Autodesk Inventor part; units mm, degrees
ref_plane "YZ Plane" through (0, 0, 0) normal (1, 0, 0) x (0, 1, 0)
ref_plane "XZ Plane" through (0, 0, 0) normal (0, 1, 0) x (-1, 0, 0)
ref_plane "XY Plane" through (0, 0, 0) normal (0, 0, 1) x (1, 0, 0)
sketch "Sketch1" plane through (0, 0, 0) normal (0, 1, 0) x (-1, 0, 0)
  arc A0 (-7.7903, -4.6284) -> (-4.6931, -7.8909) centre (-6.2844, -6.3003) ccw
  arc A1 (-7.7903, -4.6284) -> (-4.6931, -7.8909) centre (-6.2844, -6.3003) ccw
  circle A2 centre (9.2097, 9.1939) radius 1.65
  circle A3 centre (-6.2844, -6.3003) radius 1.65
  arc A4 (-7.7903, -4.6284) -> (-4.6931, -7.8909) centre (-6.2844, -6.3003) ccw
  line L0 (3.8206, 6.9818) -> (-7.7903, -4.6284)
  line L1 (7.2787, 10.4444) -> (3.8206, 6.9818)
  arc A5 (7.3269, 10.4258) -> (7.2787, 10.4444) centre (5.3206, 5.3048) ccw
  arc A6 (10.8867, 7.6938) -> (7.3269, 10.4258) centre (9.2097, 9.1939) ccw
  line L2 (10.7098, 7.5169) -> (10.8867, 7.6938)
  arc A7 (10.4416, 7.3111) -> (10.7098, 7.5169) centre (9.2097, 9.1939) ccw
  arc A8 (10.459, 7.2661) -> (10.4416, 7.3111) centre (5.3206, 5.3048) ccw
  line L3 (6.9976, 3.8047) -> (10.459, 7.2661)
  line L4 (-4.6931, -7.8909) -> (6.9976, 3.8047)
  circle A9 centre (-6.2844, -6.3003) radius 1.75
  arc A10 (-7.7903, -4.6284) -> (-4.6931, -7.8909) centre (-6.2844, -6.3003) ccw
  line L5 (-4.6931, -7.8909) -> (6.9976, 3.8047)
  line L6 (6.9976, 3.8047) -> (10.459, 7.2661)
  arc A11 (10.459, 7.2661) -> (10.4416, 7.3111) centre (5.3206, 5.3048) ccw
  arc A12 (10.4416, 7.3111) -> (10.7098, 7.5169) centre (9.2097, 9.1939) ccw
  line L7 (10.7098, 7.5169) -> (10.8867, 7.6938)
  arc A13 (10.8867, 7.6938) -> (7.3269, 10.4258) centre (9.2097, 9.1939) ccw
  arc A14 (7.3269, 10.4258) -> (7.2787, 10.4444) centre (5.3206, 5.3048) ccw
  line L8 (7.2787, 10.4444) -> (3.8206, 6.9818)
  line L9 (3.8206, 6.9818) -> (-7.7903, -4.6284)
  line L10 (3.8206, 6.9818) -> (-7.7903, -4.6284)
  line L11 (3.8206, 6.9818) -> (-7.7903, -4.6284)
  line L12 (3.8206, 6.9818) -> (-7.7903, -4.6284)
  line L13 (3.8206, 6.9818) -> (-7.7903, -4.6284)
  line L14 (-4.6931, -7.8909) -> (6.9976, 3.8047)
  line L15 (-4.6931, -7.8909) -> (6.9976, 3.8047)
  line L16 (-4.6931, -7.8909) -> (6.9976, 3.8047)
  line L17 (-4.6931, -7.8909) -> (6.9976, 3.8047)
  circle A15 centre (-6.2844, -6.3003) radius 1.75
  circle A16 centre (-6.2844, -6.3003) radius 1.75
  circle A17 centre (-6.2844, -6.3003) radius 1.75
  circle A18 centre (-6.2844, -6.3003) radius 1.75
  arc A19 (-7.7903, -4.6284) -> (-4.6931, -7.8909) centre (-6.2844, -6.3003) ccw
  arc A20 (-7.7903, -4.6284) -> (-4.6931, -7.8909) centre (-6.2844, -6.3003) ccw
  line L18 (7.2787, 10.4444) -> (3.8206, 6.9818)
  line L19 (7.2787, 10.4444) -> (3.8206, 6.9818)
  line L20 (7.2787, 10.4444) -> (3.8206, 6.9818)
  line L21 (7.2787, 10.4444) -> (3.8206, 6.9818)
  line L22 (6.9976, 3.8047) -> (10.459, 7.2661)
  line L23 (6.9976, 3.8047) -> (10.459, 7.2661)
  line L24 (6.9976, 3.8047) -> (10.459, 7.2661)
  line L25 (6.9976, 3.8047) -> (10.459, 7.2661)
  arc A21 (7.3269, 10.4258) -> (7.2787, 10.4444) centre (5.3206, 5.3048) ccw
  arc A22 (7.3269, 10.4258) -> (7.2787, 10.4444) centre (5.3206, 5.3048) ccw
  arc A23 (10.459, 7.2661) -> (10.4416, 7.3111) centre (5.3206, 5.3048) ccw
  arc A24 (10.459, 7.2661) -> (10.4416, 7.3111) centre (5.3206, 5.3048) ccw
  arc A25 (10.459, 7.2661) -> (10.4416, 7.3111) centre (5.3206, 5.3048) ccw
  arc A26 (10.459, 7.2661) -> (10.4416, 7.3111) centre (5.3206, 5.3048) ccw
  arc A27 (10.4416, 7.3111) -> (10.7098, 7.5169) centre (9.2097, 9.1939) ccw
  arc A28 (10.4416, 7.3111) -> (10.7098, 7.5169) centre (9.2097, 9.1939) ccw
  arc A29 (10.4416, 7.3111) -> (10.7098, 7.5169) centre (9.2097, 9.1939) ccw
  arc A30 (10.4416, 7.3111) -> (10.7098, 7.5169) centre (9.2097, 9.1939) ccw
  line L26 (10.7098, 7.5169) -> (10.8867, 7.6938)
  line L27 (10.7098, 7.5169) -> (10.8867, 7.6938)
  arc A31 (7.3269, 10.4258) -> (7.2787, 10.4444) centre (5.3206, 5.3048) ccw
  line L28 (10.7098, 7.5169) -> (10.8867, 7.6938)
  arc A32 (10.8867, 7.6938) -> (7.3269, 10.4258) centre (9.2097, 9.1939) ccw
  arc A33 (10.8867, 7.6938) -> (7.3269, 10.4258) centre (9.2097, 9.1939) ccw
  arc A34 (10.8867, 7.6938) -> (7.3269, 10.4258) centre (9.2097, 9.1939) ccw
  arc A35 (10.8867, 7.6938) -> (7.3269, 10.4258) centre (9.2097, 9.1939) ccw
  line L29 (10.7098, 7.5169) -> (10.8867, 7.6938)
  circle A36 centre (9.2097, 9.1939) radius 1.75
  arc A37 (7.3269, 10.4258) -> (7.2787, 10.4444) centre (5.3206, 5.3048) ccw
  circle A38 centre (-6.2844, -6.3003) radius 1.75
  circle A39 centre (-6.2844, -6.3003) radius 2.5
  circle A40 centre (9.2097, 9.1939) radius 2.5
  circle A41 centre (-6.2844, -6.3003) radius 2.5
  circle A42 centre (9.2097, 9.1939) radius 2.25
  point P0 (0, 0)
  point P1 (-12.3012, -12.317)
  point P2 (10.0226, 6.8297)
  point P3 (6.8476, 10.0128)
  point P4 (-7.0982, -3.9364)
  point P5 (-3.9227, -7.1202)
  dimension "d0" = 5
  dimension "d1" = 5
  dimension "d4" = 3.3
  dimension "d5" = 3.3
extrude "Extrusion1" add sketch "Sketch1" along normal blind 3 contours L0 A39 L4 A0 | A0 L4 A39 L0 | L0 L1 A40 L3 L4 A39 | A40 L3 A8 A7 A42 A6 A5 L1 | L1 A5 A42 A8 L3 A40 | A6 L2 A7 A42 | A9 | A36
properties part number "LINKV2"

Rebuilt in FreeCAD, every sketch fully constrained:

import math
import FreeCAD as App
import Part
import Sketcher

V = App.Vector
Q = App.Units.Quantity

doc = App.newDocument("Part")
body = doc.addObject("PartDesign::Body", "Body")

sketch1 = body.newObject("Sketcher::SketchObject", "Sketch")
sketch1.AttachmentSupport = (doc.getObject("XZ_Plane"), [""])
sketch1.MapMode = "FlatFace"
sketch1.addGeometry([
    Part.ArcOfCircle(Part.Circle(V(6.2844, -6.3003, 0), V(0, 0, 1), 2.5), math.radians(-160.856928), math.radians(70.998467)),
    Part.LineSegment(V(3.922643, -7.12012, 0), V(-6.9976, 3.8047, 0)),
    Part.LineSegment(V(-6.9976, 3.8047, 0), V(-10.02268, 6.82978, 0)),
    Part.ArcOfCircle(Part.Circle(V(-9.2097, 9.1939, 0), V(0, 0, 1), 2.5), math.radians(19.119373), math.radians(251.022793)),
    Part.LineSegment(V(-6.847604, 10.012743, 0), V(-3.8206, 6.9818, 0)),
    Part.LineSegment(V(-3.8206, 6.9818, 0), V(7.098384, -3.936525, 0)),
    Part.Circle(V(6.2844, -6.3003, 0), V(0, 0, 1), 1.65),
    Part.ArcOfCircle(Part.Circle(V(-9.2097, 9.1939, 0), V(0, 0, 1), 2.25), math.radians(-138.186922), math.radians(-131.813078)),
    Part.LineSegment(V(-10.8867, 7.6938, 0), V(-10.7098, 7.5169, 0)),
    Part.Circle(V(-9.2097, 9.1939, 0), V(0, 0, 1), 1.65),
], False)
sketch1.addConstraint([
    Sketcher.Constraint("Coincident", 0, 1, 1, 1),
    Sketcher.Constraint("Coincident", 1, 2, 2, 1),
    Sketcher.Constraint("Coincident", 2, 2, 3, 2),
    Sketcher.Constraint("Coincident", 3, 1, 4, 1),
    Sketcher.Constraint("Coincident", 4, 2, 5, 1),
    Sketcher.Constraint("Coincident", 5, 2, 0, 2),
    Sketcher.Constraint("Coincident", 7, 1, 8, 1),
    Sketcher.Constraint("Coincident", 8, 2, 7, 2),
    Sketcher.Constraint("Coincident", 6, 3, 0, 3),
    Sketcher.Constraint("Coincident", 7, 3, 3, 3),
    Sketcher.Constraint("Coincident", 9, 3, 3, 3),
    Sketcher.Constraint("Diameter", 6, Q("3.3 mm")),
    Sketcher.Constraint("Diameter", 9, Q("3.3 mm")),
    Sketcher.Constraint("Radius", 0, Q("2.5 mm")),
    Sketcher.Constraint("Radius", 3, Q("2.5 mm")),
    Sketcher.Constraint("Radius", 7, Q("2.25 mm")),
    Sketcher.Constraint("DistanceY", 7, 1, 3, 3, Q("1.5 mm")),
    Sketcher.Constraint("DistanceX", 8, 2, 3, 3, Q("1.5 mm")),
    Sketcher.Constraint("DistanceY", 0, 1, 2, 2, Q("13.95 mm")),
    Sketcher.Constraint("DistanceX", 1, 2, 3, 1, Q("0.15 mm")),
    Sketcher.Constraint("Distance", 2, Q("4.278 mm")),
    Sketcher.Constraint("DistanceY", -1, 1, 3, 3, Q("9.194 mm")),
    Sketcher.Constraint("DistanceX", 3, 3, 0, 3, Q("15.494 mm")),
    Sketcher.Constraint("DistanceY", 0, 1, 3, 3, Q("16.314 mm")),
    Sketcher.Constraint("DistanceX", 3, 3, 1, 2, Q("2.212 mm")),
    Sketcher.Constraint("DistanceY", 0, 3, 1, 2, Q("10.105 mm")),
    Sketcher.Constraint("DistanceX", 3, 1, 4, 2, Q("3.027 mm")),
    Sketcher.Constraint("DistanceY", 4, 2, 3, 1, Q("3.031 mm")),
    Sketcher.Constraint("DistanceX", 0, 3, 5, 2, Q("0.814 mm")),
    Sketcher.Constraint("DistanceX", -1, 1, 0, 3, Q("6.2844 mm")),
])
pad1 = body.newObject("PartDesign::Pad", "Pad")
pad1.Profile = sketch1
pad1.Length = 3
pad1.Reversed = True

doc.recompute()
